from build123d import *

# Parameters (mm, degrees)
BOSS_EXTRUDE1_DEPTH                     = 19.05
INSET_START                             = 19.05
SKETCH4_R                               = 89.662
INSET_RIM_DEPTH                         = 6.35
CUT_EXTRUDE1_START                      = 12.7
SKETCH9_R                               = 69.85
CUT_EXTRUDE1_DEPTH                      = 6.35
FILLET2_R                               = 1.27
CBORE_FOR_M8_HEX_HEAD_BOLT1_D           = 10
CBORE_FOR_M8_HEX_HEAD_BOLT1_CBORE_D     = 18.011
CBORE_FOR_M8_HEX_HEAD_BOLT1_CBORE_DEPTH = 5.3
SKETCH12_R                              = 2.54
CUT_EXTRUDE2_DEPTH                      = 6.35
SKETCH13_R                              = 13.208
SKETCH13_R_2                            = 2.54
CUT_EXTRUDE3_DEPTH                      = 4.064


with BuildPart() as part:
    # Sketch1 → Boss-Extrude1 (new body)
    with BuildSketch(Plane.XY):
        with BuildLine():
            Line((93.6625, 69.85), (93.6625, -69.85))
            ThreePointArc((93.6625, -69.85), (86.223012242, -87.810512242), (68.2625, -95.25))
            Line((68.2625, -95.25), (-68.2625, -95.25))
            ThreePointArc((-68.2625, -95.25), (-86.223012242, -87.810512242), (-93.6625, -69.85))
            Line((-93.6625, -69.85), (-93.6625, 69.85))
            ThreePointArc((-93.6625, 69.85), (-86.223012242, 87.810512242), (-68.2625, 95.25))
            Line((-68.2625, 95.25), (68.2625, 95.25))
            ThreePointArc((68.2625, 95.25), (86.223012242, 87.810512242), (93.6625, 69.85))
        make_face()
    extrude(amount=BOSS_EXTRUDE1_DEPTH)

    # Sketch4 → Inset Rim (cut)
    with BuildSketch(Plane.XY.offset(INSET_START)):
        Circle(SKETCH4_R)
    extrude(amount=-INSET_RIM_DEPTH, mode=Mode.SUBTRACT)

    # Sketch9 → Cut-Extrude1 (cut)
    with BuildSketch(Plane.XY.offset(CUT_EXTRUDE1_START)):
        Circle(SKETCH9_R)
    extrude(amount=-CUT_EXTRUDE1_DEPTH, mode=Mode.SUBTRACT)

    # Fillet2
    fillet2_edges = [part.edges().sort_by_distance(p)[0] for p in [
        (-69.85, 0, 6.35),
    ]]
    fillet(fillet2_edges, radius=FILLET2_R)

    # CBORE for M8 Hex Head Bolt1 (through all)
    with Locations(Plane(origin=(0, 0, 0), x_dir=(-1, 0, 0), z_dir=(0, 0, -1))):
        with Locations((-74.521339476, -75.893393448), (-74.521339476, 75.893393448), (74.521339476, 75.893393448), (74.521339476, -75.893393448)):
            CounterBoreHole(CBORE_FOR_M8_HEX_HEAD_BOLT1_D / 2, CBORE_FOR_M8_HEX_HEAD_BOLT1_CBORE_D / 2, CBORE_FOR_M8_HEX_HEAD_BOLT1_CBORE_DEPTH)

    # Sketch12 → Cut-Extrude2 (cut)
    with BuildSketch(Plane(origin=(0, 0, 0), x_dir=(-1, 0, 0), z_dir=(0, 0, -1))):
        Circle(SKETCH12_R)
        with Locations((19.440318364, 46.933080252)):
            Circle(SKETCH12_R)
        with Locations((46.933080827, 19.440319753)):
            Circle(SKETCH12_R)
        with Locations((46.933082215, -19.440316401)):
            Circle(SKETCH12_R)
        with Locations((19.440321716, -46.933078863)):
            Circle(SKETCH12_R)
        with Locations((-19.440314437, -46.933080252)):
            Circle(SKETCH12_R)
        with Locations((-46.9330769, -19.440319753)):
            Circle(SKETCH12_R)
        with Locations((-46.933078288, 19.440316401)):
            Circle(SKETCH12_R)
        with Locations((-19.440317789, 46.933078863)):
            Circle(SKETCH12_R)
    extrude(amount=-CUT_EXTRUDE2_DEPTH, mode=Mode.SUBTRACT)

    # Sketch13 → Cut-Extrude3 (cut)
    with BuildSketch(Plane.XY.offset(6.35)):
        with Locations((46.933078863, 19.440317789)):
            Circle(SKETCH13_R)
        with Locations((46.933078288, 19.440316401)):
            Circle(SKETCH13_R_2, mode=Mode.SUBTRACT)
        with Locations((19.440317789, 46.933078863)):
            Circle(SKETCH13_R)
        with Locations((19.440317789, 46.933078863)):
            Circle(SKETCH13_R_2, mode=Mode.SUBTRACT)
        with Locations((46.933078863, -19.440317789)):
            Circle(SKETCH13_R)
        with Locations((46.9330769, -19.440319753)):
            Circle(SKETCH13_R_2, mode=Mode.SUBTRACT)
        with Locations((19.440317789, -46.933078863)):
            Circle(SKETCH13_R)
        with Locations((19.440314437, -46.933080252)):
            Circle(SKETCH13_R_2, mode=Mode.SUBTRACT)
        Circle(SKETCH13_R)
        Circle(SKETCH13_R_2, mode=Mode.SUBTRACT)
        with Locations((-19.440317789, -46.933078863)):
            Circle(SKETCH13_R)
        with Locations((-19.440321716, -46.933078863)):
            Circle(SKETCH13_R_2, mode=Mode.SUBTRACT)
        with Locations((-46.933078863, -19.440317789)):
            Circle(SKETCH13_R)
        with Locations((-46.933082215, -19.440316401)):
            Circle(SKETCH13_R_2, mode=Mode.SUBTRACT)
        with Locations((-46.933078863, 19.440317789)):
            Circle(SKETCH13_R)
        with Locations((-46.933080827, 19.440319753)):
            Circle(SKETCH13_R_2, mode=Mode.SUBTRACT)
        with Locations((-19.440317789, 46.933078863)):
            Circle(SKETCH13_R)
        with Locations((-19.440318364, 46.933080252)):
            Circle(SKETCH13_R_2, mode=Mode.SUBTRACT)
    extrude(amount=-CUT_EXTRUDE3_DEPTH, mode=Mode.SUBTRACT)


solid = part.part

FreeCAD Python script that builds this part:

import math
import FreeCAD as App
import Part
import Sketcher
Q = App.Units.Quantity


def edges_at(feature, points):
    """Names of the edges that pass closest to the given points."""
    edges = feature.Shape.Edges
    near = lambda p: min(range(len(edges)), key=lambda i: edges[i].distToShape(Part.Vertex(*p))[0])
    return sorted({f"Edge{near(p) + 1}" for p in points})

doc = App.newDocument("Part")
body = doc.addObject("PartDesign::Body", "Body")

# Sketch on XY plane
sketch1 = body.newObject("Sketcher::SketchObject", "Sketch")
sketch1.AttachmentSupport = (doc.getObject("XY_Plane"), [""])
sketch1.MapMode = "FlatFace"
sketch1.addGeometry([
    Part.LineSegment(App.Vector(94, -70, 0), App.Vector(94, 70, 0)),  # 0
    Part.ArcOfCircle(Part.Circle(App.Vector(68, 70, 0), App.Vector(0, 0, 1), 25), math.radians(0), math.radians(90)),  # 1
    Part.LineSegment(App.Vector(68, 95, 0), App.Vector(-68, 95, 0)),  # 2
    Part.ArcOfCircle(Part.Circle(App.Vector(-68, 70, 0), App.Vector(0, 0, 1), 25), math.radians(90), math.radians(180)),  # 3
    Part.LineSegment(App.Vector(-94, 70, 0), App.Vector(-94, -70, 0)),  # 4
    Part.ArcOfCircle(Part.Circle(App.Vector(-68, -70, 0), App.Vector(0, 0, 1), 25), math.radians(180), math.radians(270)),  # 5
    Part.LineSegment(App.Vector(-68, -95, 0), App.Vector(68, -95, 0)),  # 6
    Part.ArcOfCircle(Part.Circle(App.Vector(68, -70, 0), App.Vector(0, 0, 1), 25), math.radians(-90), math.radians(0)),  # 7
], False)
sketch1.addConstraint([
    Sketcher.Constraint("Tangent", 0, 2, 1, 1),
    Sketcher.Constraint("Tangent", 1, 2, 2, 1),
    Sketcher.Constraint("Tangent", 2, 2, 3, 1),
    Sketcher.Constraint("Tangent", 3, 2, 4, 1),
    Sketcher.Constraint("Tangent", 4, 2, 5, 1),
    Sketcher.Constraint("Tangent", 5, 2, 6, 1),
    Sketcher.Constraint("Tangent", 6, 2, 7, 1),
    Sketcher.Constraint("Tangent", 7, 2, 0, 1),
    Sketcher.Constraint("Vertical", 0),
    Sketcher.Constraint("Horizontal", 2),
    Sketcher.Constraint("Vertical", 4),
    Sketcher.Constraint("Horizontal", 6),
    Sketcher.Constraint("Equal", 1, 3),
    Sketcher.Constraint("Equal", 3, 5),
    Sketcher.Constraint("Equal", 5, 7),
    Sketcher.Constraint("Symmetric", 1, 3, 5, 3, -1, 1),
    Sketcher.Constraint("Radius", 1, Q("1 in")),
    Sketcher.Constraint("DistanceY", 0, 1, 0, 2, Q("5.5 in")),
    Sketcher.Constraint("DistanceX", 2, 2, 2, 1, Q("5.375 in")),
])
pad1 = body.newObject("PartDesign::Pad", "Pad")
pad1.Profile = sketch1
pad1.Length = Q("0.75 in")

# Sketch on XY plane
sketch2 = body.newObject("Sketcher::SketchObject", "Sketch001")
sketch2.AttachmentSupport = (doc.getObject("XY_Plane"), [""])
sketch2.MapMode = "FlatFace"
sketch2.AttachmentOffset = App.Placement(App.Vector(0, 0, 0.75 * 25.4), App.Rotation())
sketch2.addGeometry(Part.Circle(App.Vector(0, 0, 0), App.Vector(0, 0, 1), 90), False)
sketch2.addConstraint([
    Sketcher.Constraint("Coincident", 0, 3, -1, 1),
    Sketcher.Constraint("Diameter", 0, Q("7.06 in")),
])
pocket1 = body.newObject("PartDesign::Pocket", "Pocket")
pocket1.Profile = sketch2
pocket1.Length = Q("0.25 in")

# Sketch on XY plane
sketch3 = body.newObject("Sketcher::SketchObject", "Sketch002")
sketch3.AttachmentSupport = (doc.getObject("XY_Plane"), [""])
sketch3.MapMode = "FlatFace"
sketch3.AttachmentOffset = App.Placement(App.Vector(0, 0, 0.5 * 25.4), App.Rotation())
sketch3.addGeometry(Part.Circle(App.Vector(0, 0, 0), App.Vector(0, 0, 1), 70), False)
sketch3.addConstraint([
    Sketcher.Constraint("Coincident", 0, 3, -1, 1),
    Sketcher.Constraint("Diameter", 0, Q("5.5 in")),
])
pocket2 = body.newObject("PartDesign::Pocket", "Pocket001")
pocket2.Profile = sketch3
pocket2.Length = Q("0.25 in")
doc.recompute()

fillet = body.newObject("PartDesign::Fillet", "Fillet")
fillet.Base = (pocket2, edges_at(pocket2, [(-69.85, 0, 6.35)]))
fillet.Radius = Q("0.05 in")

# Sketch on XY plane
sketch4 = body.newObject("Sketcher::SketchObject", "Sketch003")
sketch4.AttachmentSupport = (doc.getObject("XY_Plane"), [""])
sketch4.MapMode = "FlatFace"
sketch4.addGeometry([
    Part.Circle(App.Vector(75, -76, 0), App.Vector(0, 0, 1), 5),
    Part.Circle(App.Vector(75, 76, 0), App.Vector(0, 0, 1), 5),
    Part.Circle(App.Vector(-75, 76, 0), App.Vector(0, 0, 1), 5),
    Part.Circle(App.Vector(-75, -76, 0), App.Vector(0, 0, 1), 5),
], False)
sketch4.addConstraint([
    Sketcher.Constraint("Equal", 0, 1),
    Sketcher.Constraint("Equal", 1, 2),
    Sketcher.Constraint("Equal", 2, 3),
    Sketcher.Constraint("Symmetric", 0, 3, 2, 3, -1, 1),
    Sketcher.Constraint("Symmetric", 1, 3, 3, 3, -1, 1),
    Sketcher.Constraint("Symmetric", 1, 3, 2, 3, -2),
    Sketcher.Constraint("Diameter", 0, 10.0),
    Sketcher.Constraint("DistanceX", -1, 1, 0, 3, 74.521339),
    Sketcher.Constraint("DistanceY", 0, 3, -1, 1, 75.893393),
])
doc.recompute()
hole = body.newObject("PartDesign::Hole", "Hole")
hole.Profile = sketch4
hole.ThreadType = "None"
hole.Diameter = 10
hole.DepthType = "ThroughAll"
hole.HoleCutType = "Counterbore"
hole.HoleCutDiameter = 18.011
hole.HoleCutDepth = 5.3
hole.Reversed = True

# Sketch on XY plane
sketch5 = body.newObject("Sketcher::SketchObject", "Sketch004")
sketch5.AttachmentSupport = (doc.getObject("XY_Plane"), [""])
sketch5.MapMode = "FlatFace"
sketch5.addGeometry([
    Part.Circle(App.Vector(0, 0, 0), App.Vector(0, 0, 1), 2.5),  # 0
    Part.Circle(App.Vector(-19.4, 46.9, 0), App.Vector(0, 0, 1), 2.5),  # 1
    Part.Circle(App.Vector(-46.9, 19.4, 0), App.Vector(0, 0, 1), 2.5),  # 2
    Part.Circle(App.Vector(-46.9, -19.4, 0), App.Vector(0, 0, 1), 2.5),  # 3
    Part.Circle(App.Vector(-19.4, -46.9, 0), App.Vector(0, 0, 1), 2.5),  # 4
    Part.Circle(App.Vector(19.4, -46.9, 0), App.Vector(0, 0, 1), 2.5),  # 5
    Part.Circle(App.Vector(46.9, -19.4, 0), App.Vector(0, 0, 1), 2.5),  # 6
    Part.Circle(App.Vector(46.9, 19.4, 0), App.Vector(0, 0, 1), 2.5),  # 7
    Part.Circle(App.Vector(19.4, 46.9, 0), App.Vector(0, 0, 1), 2.5),  # 8
], False)
sketch5.addConstraint([
    Sketcher.Constraint("Coincident", 0, 3, -1, 1),
    Sketcher.Constraint("Equal", 0, 1),
    Sketcher.Constraint("Equal", 1, 2),
    Sketcher.Constraint("Equal", 2, 3),
    Sketcher.Constraint("Equal", 3, 4),
    Sketcher.Constraint("Equal", 4, 5),
    Sketcher.Constraint("Equal", 5, 6),
    Sketcher.Constraint("Equal", 6, 7),
    Sketcher.Constraint("Equal", 7, 8),
    Sketcher.Constraint("Symmetric", 1, 3, 5, 3, -1, 1),
    Sketcher.Constraint("Symmetric", 2, 3, 6, 3, -1, 1),
    Sketcher.Constraint("Symmetric", 3, 3, 7, 3, -1, 1),
    Sketcher.Constraint("Symmetric", 4, 3, 8, 3, -1, 1),
    Sketcher.Constraint("Symmetric", 4, 3, 5, 3, -2),
    Sketcher.Constraint("Symmetric", 3, 3, 6, 3, -2),
    Sketcher.Constraint("Diameter", 0, Q("0.2 in")),
    Sketcher.Constraint("DistanceY", 4, 3, 2, 3, 66.373399),
    Sketcher.Constraint("DistanceX", 4, 3, 6, 3, 66.373399),
    Sketcher.Constraint("DistanceX", 1, 3, -1, 1, 19.440318),
    Sketcher.Constraint("DistanceY", -1, 1, 1, 3, 46.93308),
])
pocket3 = body.newObject("PartDesign::Pocket", "Pocket002")
pocket3.Profile = sketch5
pocket3.Length = Q("0.25 in")
pocket3.Reversed = True

# Sketch on XY plane
sketch6 = body.newObject("Sketcher::SketchObject", "Sketch005")
sketch6.AttachmentSupport = (doc.getObject("XY_Plane"), [""])
sketch6.MapMode = "FlatFace"
sketch6.AttachmentOffset = App.Placement(App.Vector(0, 0, 0.25 * 25.4), App.Rotation())
sketch6.addGeometry([
    Part.Circle(App.Vector(46.9, 19.4, 0), App.Vector(0, 0, 1), 13.2),  # 0
    Part.Circle(App.Vector(46.9, 19.4, 0), App.Vector(0, 0, 1), 2.5),  # 1
    Part.Circle(App.Vector(19.4, 46.9, 0), App.Vector(0, 0, 1), 13.2),  # 2
    Part.Circle(App.Vector(19.4, 46.9, 0), App.Vector(0, 0, 1), 2.5),  # 3
    Part.Circle(App.Vector(46.9, -19.4, 0), App.Vector(0, 0, 1), 13.2),  # 4
    Part.Circle(App.Vector(46.9, -19.4, 0), App.Vector(0, 0, 1), 2.5),  # 5
    Part.Circle(App.Vector(19.4, -46.9, 0), App.Vector(0, 0, 1), 13.2),  # 6
    Part.Circle(App.Vector(19.4, -46.9, 0), App.Vector(0, 0, 1), 2.5),  # 7
    Part.Circle(App.Vector(0, 0, 0), App.Vector(0, 0, 1), 13.2),  # 8
    Part.Circle(App.Vector(0, 0, 0), App.Vector(0, 0, 1), 2.5),  # 9
    Part.Circle(App.Vector(-19.4, -46.9, 0), App.Vector(0, 0, 1), 13.2),  # 10
    Part.Circle(App.Vector(-19.4, -46.9, 0), App.Vector(0, 0, 1), 2.5),  # 11
    Part.Circle(App.Vector(-46.9, -19.4, 0), App.Vector(0, 0, 1), 13.2),  # 12
    Part.Circle(App.Vector(-46.9, -19.4, 0), App.Vector(0, 0, 1), 2.5),  # 13
    Part.Circle(App.Vector(-46.9, 19.4, 0), App.Vector(0, 0, 1), 13.2),  # 14
    Part.Circle(App.Vector(-46.9, 19.4, 0), App.Vector(0, 0, 1), 2.5),  # 15
    Part.Circle(App.Vector(-19.4, 46.9, 0), App.Vector(0, 0, 1), 13.2),  # 16
    Part.Circle(App.Vector(-19.4, 46.9, 0), App.Vector(0, 0, 1), 2.5),  # 17
], False)
sketch6.addConstraint([
    Sketcher.Constraint("Coincident", 8, 3, -1, 1),
    Sketcher.Constraint("Coincident", 9, 3, -1, 1),
    Sketcher.Constraint("Coincident", 1, 3, 0, 3),
    Sketcher.Constraint("Coincident", 3, 3, 2, 3),
    Sketcher.Constraint("Coincident", 5, 3, 4, 3),
    Sketcher.Constraint("Coincident", 7, 3, 6, 3),
    Sketcher.Constraint("Coincident", 11, 3, 10, 3),
    Sketcher.Constraint("Coincident", 13, 3, 12, 3),
    Sketcher.Constraint("Coincident", 15, 3, 14, 3),
    Sketcher.Constraint("Coincident", 17, 3, 16, 3),
    Sketcher.Constraint("Equal", 0, 2),
    Sketcher.Constraint("Equal", 1, 3),
    Sketcher.Constraint("Equal", 2, 4),
    Sketcher.Constraint("Equal", 3, 5),
    Sketcher.Constraint("Equal", 4, 6),
    Sketcher.Constraint("Equal", 5, 7),
    Sketcher.Constraint("Equal", 6, 8),
    Sketcher.Constraint("Equal", 7, 9),
    Sketcher.Constraint("Equal", 8, 10),
    Sketcher.Constraint("Equal", 9, 11),
    Sketcher.Constraint("Equal", 10, 12),
    Sketcher.Constraint("Equal", 11, 13),
    Sketcher.Constraint("Equal", 12, 14),
    Sketcher.Constraint("Equal", 13, 15),
    Sketcher.Constraint("Equal", 14, 16),
    Sketcher.Constraint("Equal", 15, 17),
    Sketcher.Constraint("Symmetric", 2, 3, 10, 3, -1, 1),
    Sketcher.Constraint("Symmetric", 0, 3, 12, 3, -1, 1),
    Sketcher.Constraint("Symmetric", 4, 3, 14, 3, -1, 1),
    Sketcher.Constraint("Symmetric", 6, 3, 16, 3, -1, 1),
    Sketcher.Constraint("Symmetric", 6, 3, 10, 3, -2),
    Sketcher.Constraint("Symmetric", 4, 3, 12, 3, -2),
    Sketcher.Constraint("Diameter", 1, Q("0.2 in")),
    Sketcher.Constraint("Diameter", 0, Q("1.04 in")),
    Sketcher.Constraint("DistanceY", 5, 3, 2, 3, 66.373399),
    Sketcher.Constraint("DistanceX", -1, 1, 0, 3, 46.933079),
    Sketcher.Constraint("DistanceY", -1, 1, 2, 3, 46.933079),
    Sketcher.Constraint("DistanceX", 11, 3, -1, 1, 19.440322),
])
pocket4 = body.newObject("PartDesign::Pocket", "Pocket003")
pocket4.Profile = sketch6
pocket4.Length = Q("0.16 in")

doc.recompute()
